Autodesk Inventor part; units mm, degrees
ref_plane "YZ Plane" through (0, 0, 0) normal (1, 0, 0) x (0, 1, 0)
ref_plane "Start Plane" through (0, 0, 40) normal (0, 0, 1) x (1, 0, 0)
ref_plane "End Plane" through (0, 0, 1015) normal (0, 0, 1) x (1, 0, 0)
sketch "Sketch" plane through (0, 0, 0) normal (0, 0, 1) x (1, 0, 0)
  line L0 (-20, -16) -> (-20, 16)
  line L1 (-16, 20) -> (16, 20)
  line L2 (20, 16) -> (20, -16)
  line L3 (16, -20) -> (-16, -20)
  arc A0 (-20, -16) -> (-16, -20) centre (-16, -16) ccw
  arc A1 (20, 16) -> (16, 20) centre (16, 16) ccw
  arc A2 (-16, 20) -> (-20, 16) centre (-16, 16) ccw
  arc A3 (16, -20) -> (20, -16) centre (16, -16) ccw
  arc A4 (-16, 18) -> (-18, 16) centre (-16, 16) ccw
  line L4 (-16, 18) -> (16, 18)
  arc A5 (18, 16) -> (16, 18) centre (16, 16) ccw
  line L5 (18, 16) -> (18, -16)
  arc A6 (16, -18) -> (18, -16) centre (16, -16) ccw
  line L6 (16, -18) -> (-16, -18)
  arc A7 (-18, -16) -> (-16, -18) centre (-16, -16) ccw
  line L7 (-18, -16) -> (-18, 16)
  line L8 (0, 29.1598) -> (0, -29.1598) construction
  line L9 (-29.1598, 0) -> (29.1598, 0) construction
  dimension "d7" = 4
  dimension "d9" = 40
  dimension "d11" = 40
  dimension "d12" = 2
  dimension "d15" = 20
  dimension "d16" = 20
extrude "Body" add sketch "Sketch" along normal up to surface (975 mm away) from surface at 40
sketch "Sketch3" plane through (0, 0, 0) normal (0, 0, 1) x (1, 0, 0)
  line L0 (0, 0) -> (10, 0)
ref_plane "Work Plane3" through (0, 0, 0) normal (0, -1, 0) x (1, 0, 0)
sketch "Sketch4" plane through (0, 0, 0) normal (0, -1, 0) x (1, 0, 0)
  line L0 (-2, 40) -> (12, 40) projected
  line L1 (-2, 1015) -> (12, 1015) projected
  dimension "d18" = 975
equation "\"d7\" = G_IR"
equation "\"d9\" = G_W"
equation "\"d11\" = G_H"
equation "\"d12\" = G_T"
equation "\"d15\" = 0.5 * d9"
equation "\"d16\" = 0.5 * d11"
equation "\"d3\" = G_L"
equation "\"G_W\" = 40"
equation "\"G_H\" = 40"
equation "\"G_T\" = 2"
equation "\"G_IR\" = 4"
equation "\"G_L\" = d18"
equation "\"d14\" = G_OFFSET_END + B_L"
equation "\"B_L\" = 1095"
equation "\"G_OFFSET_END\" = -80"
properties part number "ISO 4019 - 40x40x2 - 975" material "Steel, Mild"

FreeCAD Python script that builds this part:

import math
import FreeCAD as App
import Part
import Sketcher

doc = App.newDocument("Part")
body = doc.addObject("PartDesign::Body", "Body")

# Sketch on XY plane
sketch1 = body.newObject("Sketcher::SketchObject", "Sketch")
sketch1.AttachmentSupport = (doc.getObject("XY_Plane"), [""])
sketch1.MapMode = "FlatFace"
sketch1.AttachmentOffset = App.Placement(App.Vector(0, 0, 40), App.Rotation())
sketch1.addGeometry(Part.LineSegment(App.Vector(-20, 16, 0), App.Vector(-20, -16, 0)), False)
sketch1.addGeometry(Part.ArcOfCircle(Part.Circle(App.Vector(-16, -16, 0), App.Vector(0, 0, 1), 4), math.radians(180), math.radians(270)), False)
sketch1.addGeometry(Part.LineSegment(App.Vector(-16, -20, 0), App.Vector(16, -20, 0)), False)
sketch1.addGeometry(Part.ArcOfCircle(Part.Circle(App.Vector(16, -16, 0), App.Vector(0, 0, 1), 4), math.radians(-90), math.radians(0)), False)
sketch1.addGeometry(Part.LineSegment(App.Vector(20, -16, 0), App.Vector(20, 16, 0)), False)
sketch1.addGeometry(Part.ArcOfCircle(Part.Circle(App.Vector(16, 16, 0), App.Vector(0, 0, 1), 4), math.radians(0), math.radians(90)), False)
sketch1.addGeometry(Part.LineSegment(App.Vector(16, 20, 0), App.Vector(-16, 20, 0)), False)
sketch1.addGeometry(Part.ArcOfCircle(Part.Circle(App.Vector(-16, 16, 0), App.Vector(0, 0, 1), 4), math.radians(90), math.radians(180)), False)
sketch1.addGeometry(Part.ArcOfCircle(Part.Circle(App.Vector(-16, 16, 0), App.Vector(0, 0, 1), 2), math.radians(90), math.radians(180)), False)
sketch1.addGeometry(Part.LineSegment(App.Vector(-16, 18, 0), App.Vector(16, 18, 0)), False)
sketch1.addGeometry(Part.ArcOfCircle(Part.Circle(App.Vector(16, 16, 0), App.Vector(0, 0, 1), 2), math.radians(0), math.radians(90)), False)
sketch1.addGeometry(Part.LineSegment(App.Vector(18, 16, 0), App.Vector(18, -16, 0)), False)
sketch1.addGeometry(Part.ArcOfCircle(Part.Circle(App.Vector(16, -16, 0), App.Vector(0, 0, 1), 2), math.radians(-90), math.radians(0)), False)
sketch1.addGeometry(Part.LineSegment(App.Vector(16, -18, 0), App.Vector(-16, -18, 0)), False)
sketch1.addGeometry(Part.ArcOfCircle(Part.Circle(App.Vector(-16, -16, 0), App.Vector(0, 0, 1), 2), math.radians(180), math.radians(270)), False)
sketch1.addGeometry(Part.LineSegment(App.Vector(-18, -16, 0), App.Vector(-18, 16, 0)), False)
sketch1.addConstraint(Sketcher.Constraint("Tangent", 0, 2, 1, 1))
sketch1.addConstraint(Sketcher.Constraint("Tangent", 1, 2, 2, 1))
sketch1.addConstraint(Sketcher.Constraint("Tangent", 2, 2, 3, 1))
sketch1.addConstraint(Sketcher.Constraint("Tangent", 3, 2, 4, 1))
sketch1.addConstraint(Sketcher.Constraint("Tangent", 4, 2, 5, 1))
sketch1.addConstraint(Sketcher.Constraint("Tangent", 5, 2, 6, 1))
sketch1.addConstraint(Sketcher.Constraint("Tangent", 6, 2, 7, 1))
sketch1.addConstraint(Sketcher.Constraint("Tangent", 7, 2, 0, 1))
sketch1.addConstraint(Sketcher.Constraint("Tangent", 8, 1, 9, 1))
sketch1.addConstraint(Sketcher.Constraint("Tangent", 9, 2, 10, 2))
sketch1.addConstraint(Sketcher.Constraint("Tangent", 10, 1, 11, 1))
sketch1.addConstraint(Sketcher.Constraint("Tangent", 11, 2, 12, 2))
sketch1.addConstraint(Sketcher.Constraint("Tangent", 12, 1, 13, 1))
sketch1.addConstraint(Sketcher.Constraint("Tangent", 13, 2, 14, 2))
sketch1.addConstraint(Sketcher.Constraint("Tangent", 14, 1, 15, 1))
sketch1.addConstraint(Sketcher.Constraint("Tangent", 15, 2, 8, 2))
sketch1.addConstraint(Sketcher.Constraint("Vertical", 0))
sketch1.addConstraint(Sketcher.Constraint("Horizontal", 2))
sketch1.addConstraint(Sketcher.Constraint("Vertical", 4))
sketch1.addConstraint(Sketcher.Constraint("Horizontal", 6))
sketch1.addConstraint(Sketcher.Constraint("Horizontal", 9))
sketch1.addConstraint(Sketcher.Constraint("Vertical", 11))
sketch1.addConstraint(Sketcher.Constraint("Horizontal", 13))
sketch1.addConstraint(Sketcher.Constraint("Vertical", 15))
sketch1.addConstraint(Sketcher.Constraint("Coincident", 8, 3, 7, 3))
sketch1.addConstraint(Sketcher.Constraint("Coincident", 10, 3, 5, 3))
sketch1.addConstraint(Sketcher.Constraint("Coincident", 12, 3, 3, 3))
sketch1.addConstraint(Sketcher.Constraint("Equal", 1, 3))
sketch1.addConstraint(Sketcher.Constraint("Equal", 3, 5))
sketch1.addConstraint(Sketcher.Constraint("Equal", 5, 7))
sketch1.addConstraint(Sketcher.Constraint("Equal", 12, 14))
sketch1.addConstraint(Sketcher.Constraint("Symmetric", 1, 3, 5, 3, -1, 1))
sketch1.addConstraint(Sketcher.Constraint("Equal", 13, 0))
sketch1.addConstraint(Sketcher.Constraint("Radius", 1, 4.0))
sketch1.addConstraint(Sketcher.Constraint("Radius", 8, 2.0))
sketch1.addConstraint(Sketcher.Constraint("DistanceX", 0, 2, -1, 1, 20.0))
pad1 = body.newObject("PartDesign::Pad", "Pad")
pad1.Profile = sketch1
pad1.Length = 975

doc.recompute()
